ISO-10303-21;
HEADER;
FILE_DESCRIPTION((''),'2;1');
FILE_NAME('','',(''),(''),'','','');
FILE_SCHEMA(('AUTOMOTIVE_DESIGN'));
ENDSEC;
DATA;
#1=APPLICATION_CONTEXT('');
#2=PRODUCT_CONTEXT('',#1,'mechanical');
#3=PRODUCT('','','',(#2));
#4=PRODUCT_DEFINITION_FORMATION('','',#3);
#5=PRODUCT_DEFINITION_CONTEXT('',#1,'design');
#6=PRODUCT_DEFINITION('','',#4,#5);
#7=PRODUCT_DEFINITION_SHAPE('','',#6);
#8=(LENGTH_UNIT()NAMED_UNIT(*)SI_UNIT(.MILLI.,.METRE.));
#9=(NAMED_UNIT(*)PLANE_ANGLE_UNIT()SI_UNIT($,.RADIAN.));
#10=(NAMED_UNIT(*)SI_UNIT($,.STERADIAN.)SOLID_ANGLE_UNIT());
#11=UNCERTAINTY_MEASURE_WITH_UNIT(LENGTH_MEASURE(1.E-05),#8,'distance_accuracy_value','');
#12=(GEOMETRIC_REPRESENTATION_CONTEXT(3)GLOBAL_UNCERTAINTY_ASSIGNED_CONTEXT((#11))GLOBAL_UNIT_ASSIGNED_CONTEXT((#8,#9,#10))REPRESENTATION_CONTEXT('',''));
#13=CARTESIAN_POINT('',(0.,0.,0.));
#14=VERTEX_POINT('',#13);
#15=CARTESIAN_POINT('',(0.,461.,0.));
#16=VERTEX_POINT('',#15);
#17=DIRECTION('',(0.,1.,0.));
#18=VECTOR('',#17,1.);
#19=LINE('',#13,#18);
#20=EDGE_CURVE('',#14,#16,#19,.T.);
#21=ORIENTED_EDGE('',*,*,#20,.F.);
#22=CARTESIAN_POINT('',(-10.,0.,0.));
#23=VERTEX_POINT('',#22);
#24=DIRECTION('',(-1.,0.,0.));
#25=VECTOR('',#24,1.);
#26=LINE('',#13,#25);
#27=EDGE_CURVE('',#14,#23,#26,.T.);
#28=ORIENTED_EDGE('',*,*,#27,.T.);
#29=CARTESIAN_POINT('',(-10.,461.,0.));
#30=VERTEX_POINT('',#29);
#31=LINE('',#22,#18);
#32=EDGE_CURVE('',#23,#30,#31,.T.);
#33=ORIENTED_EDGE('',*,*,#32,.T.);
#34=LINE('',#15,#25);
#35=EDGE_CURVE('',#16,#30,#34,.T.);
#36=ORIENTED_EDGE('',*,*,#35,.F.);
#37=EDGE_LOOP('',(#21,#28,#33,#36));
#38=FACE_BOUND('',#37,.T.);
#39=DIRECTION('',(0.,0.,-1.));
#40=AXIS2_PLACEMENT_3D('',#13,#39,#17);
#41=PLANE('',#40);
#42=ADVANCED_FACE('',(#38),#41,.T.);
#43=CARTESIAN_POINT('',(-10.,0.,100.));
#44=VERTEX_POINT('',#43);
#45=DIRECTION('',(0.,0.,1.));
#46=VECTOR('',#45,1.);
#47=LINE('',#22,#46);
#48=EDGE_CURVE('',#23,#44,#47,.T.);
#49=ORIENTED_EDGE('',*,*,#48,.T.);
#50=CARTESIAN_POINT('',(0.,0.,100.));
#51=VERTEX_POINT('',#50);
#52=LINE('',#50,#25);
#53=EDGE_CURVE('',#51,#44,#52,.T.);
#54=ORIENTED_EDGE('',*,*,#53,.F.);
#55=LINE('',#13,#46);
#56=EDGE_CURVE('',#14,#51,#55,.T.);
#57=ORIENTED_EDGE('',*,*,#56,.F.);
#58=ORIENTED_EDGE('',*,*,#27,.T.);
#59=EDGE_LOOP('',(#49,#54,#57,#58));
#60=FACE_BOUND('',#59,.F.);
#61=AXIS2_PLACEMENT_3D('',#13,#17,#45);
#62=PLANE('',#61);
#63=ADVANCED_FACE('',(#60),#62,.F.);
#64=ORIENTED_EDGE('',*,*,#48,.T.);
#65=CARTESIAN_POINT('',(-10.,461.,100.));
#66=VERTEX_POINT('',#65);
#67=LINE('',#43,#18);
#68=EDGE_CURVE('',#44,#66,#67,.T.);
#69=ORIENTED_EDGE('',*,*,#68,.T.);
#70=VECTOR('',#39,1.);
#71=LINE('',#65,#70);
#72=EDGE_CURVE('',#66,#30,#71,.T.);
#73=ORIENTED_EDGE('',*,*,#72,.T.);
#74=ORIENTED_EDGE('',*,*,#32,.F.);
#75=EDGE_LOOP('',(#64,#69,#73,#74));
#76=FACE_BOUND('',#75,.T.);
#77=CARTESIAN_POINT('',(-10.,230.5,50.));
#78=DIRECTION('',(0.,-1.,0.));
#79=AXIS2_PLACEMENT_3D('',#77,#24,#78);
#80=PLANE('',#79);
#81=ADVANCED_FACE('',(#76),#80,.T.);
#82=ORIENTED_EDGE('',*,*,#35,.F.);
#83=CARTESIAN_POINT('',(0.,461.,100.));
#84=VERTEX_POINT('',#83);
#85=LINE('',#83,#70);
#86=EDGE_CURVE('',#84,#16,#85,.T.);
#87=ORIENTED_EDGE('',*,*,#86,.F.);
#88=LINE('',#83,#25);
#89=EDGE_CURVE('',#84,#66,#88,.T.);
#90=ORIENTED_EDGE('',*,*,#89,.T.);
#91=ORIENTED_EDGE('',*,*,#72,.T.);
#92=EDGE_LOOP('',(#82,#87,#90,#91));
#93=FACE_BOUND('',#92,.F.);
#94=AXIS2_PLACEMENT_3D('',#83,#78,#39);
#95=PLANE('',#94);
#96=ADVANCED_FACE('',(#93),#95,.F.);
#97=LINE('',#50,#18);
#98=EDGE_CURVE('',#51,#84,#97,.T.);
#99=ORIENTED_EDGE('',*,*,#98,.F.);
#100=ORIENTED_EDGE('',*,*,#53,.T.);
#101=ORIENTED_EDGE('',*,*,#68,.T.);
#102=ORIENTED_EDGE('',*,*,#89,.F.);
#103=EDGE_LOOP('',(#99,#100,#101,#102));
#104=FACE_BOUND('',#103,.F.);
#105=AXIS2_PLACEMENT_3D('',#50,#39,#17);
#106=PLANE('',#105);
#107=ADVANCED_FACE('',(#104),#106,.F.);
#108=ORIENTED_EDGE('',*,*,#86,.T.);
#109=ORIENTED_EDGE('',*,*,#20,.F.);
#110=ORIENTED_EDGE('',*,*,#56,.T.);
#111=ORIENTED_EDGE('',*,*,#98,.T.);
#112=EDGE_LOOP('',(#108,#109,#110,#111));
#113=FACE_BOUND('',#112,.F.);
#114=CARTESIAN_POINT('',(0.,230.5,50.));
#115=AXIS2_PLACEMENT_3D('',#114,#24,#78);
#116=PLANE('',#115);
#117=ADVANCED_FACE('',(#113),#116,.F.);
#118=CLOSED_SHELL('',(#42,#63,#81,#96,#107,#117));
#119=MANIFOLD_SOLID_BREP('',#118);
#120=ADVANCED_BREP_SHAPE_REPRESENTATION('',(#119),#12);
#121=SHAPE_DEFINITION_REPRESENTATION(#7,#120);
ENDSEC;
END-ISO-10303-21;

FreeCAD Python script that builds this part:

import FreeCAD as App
import Part
import Sketcher
Q = App.Units.Quantity

doc = App.newDocument("Part")
body = doc.addObject("PartDesign::Body", "Body")

# Sketch on YZ plane
sketch1 = body.newObject("Sketcher::SketchObject", "Sketch")
sketch1.AttachmentSupport = (doc.getObject("YZ_Plane"), [""])
sketch1.MapMode = "FlatFace"
sketch1.addGeometry([
    Part.LineSegment(App.Vector(0, 100, 0), App.Vector(0, 0, 0)),
    Part.LineSegment(App.Vector(0, 0, 0), App.Vector(461, 0, 0)),
    Part.LineSegment(App.Vector(461, 0, 0), App.Vector(461, 100, 0)),
    Part.LineSegment(App.Vector(461, 100, 0), App.Vector(0, 100, 0)),
], False)
sketch1.addConstraint([
    Sketcher.Constraint("Coincident", 0, 2, 1, 1),
    Sketcher.Constraint("Coincident", 1, 2, 2, 1),
    Sketcher.Constraint("Coincident", 2, 2, 3, 1),
    Sketcher.Constraint("Coincident", 3, 2, 0, 1),
    Sketcher.Constraint("Vertical", 0),
    Sketcher.Constraint("Horizontal", 1),
    Sketcher.Constraint("Vertical", 2),
    Sketcher.Constraint("Horizontal", 3),
    Sketcher.Constraint("Coincident", 0, 2, -1, 1),
    Sketcher.Constraint("DistanceX", 1, 1, 1, 2, Q("461 mm")),
    Sketcher.Constraint("DistanceY", 0, 2, 0, 1, Q("100 mm")),
])
pad1 = body.newObject("PartDesign::Pad", "Pad")
pad1.Profile = sketch1
pad1.Length = 10
pad1.Reversed = True

doc.recompute()
